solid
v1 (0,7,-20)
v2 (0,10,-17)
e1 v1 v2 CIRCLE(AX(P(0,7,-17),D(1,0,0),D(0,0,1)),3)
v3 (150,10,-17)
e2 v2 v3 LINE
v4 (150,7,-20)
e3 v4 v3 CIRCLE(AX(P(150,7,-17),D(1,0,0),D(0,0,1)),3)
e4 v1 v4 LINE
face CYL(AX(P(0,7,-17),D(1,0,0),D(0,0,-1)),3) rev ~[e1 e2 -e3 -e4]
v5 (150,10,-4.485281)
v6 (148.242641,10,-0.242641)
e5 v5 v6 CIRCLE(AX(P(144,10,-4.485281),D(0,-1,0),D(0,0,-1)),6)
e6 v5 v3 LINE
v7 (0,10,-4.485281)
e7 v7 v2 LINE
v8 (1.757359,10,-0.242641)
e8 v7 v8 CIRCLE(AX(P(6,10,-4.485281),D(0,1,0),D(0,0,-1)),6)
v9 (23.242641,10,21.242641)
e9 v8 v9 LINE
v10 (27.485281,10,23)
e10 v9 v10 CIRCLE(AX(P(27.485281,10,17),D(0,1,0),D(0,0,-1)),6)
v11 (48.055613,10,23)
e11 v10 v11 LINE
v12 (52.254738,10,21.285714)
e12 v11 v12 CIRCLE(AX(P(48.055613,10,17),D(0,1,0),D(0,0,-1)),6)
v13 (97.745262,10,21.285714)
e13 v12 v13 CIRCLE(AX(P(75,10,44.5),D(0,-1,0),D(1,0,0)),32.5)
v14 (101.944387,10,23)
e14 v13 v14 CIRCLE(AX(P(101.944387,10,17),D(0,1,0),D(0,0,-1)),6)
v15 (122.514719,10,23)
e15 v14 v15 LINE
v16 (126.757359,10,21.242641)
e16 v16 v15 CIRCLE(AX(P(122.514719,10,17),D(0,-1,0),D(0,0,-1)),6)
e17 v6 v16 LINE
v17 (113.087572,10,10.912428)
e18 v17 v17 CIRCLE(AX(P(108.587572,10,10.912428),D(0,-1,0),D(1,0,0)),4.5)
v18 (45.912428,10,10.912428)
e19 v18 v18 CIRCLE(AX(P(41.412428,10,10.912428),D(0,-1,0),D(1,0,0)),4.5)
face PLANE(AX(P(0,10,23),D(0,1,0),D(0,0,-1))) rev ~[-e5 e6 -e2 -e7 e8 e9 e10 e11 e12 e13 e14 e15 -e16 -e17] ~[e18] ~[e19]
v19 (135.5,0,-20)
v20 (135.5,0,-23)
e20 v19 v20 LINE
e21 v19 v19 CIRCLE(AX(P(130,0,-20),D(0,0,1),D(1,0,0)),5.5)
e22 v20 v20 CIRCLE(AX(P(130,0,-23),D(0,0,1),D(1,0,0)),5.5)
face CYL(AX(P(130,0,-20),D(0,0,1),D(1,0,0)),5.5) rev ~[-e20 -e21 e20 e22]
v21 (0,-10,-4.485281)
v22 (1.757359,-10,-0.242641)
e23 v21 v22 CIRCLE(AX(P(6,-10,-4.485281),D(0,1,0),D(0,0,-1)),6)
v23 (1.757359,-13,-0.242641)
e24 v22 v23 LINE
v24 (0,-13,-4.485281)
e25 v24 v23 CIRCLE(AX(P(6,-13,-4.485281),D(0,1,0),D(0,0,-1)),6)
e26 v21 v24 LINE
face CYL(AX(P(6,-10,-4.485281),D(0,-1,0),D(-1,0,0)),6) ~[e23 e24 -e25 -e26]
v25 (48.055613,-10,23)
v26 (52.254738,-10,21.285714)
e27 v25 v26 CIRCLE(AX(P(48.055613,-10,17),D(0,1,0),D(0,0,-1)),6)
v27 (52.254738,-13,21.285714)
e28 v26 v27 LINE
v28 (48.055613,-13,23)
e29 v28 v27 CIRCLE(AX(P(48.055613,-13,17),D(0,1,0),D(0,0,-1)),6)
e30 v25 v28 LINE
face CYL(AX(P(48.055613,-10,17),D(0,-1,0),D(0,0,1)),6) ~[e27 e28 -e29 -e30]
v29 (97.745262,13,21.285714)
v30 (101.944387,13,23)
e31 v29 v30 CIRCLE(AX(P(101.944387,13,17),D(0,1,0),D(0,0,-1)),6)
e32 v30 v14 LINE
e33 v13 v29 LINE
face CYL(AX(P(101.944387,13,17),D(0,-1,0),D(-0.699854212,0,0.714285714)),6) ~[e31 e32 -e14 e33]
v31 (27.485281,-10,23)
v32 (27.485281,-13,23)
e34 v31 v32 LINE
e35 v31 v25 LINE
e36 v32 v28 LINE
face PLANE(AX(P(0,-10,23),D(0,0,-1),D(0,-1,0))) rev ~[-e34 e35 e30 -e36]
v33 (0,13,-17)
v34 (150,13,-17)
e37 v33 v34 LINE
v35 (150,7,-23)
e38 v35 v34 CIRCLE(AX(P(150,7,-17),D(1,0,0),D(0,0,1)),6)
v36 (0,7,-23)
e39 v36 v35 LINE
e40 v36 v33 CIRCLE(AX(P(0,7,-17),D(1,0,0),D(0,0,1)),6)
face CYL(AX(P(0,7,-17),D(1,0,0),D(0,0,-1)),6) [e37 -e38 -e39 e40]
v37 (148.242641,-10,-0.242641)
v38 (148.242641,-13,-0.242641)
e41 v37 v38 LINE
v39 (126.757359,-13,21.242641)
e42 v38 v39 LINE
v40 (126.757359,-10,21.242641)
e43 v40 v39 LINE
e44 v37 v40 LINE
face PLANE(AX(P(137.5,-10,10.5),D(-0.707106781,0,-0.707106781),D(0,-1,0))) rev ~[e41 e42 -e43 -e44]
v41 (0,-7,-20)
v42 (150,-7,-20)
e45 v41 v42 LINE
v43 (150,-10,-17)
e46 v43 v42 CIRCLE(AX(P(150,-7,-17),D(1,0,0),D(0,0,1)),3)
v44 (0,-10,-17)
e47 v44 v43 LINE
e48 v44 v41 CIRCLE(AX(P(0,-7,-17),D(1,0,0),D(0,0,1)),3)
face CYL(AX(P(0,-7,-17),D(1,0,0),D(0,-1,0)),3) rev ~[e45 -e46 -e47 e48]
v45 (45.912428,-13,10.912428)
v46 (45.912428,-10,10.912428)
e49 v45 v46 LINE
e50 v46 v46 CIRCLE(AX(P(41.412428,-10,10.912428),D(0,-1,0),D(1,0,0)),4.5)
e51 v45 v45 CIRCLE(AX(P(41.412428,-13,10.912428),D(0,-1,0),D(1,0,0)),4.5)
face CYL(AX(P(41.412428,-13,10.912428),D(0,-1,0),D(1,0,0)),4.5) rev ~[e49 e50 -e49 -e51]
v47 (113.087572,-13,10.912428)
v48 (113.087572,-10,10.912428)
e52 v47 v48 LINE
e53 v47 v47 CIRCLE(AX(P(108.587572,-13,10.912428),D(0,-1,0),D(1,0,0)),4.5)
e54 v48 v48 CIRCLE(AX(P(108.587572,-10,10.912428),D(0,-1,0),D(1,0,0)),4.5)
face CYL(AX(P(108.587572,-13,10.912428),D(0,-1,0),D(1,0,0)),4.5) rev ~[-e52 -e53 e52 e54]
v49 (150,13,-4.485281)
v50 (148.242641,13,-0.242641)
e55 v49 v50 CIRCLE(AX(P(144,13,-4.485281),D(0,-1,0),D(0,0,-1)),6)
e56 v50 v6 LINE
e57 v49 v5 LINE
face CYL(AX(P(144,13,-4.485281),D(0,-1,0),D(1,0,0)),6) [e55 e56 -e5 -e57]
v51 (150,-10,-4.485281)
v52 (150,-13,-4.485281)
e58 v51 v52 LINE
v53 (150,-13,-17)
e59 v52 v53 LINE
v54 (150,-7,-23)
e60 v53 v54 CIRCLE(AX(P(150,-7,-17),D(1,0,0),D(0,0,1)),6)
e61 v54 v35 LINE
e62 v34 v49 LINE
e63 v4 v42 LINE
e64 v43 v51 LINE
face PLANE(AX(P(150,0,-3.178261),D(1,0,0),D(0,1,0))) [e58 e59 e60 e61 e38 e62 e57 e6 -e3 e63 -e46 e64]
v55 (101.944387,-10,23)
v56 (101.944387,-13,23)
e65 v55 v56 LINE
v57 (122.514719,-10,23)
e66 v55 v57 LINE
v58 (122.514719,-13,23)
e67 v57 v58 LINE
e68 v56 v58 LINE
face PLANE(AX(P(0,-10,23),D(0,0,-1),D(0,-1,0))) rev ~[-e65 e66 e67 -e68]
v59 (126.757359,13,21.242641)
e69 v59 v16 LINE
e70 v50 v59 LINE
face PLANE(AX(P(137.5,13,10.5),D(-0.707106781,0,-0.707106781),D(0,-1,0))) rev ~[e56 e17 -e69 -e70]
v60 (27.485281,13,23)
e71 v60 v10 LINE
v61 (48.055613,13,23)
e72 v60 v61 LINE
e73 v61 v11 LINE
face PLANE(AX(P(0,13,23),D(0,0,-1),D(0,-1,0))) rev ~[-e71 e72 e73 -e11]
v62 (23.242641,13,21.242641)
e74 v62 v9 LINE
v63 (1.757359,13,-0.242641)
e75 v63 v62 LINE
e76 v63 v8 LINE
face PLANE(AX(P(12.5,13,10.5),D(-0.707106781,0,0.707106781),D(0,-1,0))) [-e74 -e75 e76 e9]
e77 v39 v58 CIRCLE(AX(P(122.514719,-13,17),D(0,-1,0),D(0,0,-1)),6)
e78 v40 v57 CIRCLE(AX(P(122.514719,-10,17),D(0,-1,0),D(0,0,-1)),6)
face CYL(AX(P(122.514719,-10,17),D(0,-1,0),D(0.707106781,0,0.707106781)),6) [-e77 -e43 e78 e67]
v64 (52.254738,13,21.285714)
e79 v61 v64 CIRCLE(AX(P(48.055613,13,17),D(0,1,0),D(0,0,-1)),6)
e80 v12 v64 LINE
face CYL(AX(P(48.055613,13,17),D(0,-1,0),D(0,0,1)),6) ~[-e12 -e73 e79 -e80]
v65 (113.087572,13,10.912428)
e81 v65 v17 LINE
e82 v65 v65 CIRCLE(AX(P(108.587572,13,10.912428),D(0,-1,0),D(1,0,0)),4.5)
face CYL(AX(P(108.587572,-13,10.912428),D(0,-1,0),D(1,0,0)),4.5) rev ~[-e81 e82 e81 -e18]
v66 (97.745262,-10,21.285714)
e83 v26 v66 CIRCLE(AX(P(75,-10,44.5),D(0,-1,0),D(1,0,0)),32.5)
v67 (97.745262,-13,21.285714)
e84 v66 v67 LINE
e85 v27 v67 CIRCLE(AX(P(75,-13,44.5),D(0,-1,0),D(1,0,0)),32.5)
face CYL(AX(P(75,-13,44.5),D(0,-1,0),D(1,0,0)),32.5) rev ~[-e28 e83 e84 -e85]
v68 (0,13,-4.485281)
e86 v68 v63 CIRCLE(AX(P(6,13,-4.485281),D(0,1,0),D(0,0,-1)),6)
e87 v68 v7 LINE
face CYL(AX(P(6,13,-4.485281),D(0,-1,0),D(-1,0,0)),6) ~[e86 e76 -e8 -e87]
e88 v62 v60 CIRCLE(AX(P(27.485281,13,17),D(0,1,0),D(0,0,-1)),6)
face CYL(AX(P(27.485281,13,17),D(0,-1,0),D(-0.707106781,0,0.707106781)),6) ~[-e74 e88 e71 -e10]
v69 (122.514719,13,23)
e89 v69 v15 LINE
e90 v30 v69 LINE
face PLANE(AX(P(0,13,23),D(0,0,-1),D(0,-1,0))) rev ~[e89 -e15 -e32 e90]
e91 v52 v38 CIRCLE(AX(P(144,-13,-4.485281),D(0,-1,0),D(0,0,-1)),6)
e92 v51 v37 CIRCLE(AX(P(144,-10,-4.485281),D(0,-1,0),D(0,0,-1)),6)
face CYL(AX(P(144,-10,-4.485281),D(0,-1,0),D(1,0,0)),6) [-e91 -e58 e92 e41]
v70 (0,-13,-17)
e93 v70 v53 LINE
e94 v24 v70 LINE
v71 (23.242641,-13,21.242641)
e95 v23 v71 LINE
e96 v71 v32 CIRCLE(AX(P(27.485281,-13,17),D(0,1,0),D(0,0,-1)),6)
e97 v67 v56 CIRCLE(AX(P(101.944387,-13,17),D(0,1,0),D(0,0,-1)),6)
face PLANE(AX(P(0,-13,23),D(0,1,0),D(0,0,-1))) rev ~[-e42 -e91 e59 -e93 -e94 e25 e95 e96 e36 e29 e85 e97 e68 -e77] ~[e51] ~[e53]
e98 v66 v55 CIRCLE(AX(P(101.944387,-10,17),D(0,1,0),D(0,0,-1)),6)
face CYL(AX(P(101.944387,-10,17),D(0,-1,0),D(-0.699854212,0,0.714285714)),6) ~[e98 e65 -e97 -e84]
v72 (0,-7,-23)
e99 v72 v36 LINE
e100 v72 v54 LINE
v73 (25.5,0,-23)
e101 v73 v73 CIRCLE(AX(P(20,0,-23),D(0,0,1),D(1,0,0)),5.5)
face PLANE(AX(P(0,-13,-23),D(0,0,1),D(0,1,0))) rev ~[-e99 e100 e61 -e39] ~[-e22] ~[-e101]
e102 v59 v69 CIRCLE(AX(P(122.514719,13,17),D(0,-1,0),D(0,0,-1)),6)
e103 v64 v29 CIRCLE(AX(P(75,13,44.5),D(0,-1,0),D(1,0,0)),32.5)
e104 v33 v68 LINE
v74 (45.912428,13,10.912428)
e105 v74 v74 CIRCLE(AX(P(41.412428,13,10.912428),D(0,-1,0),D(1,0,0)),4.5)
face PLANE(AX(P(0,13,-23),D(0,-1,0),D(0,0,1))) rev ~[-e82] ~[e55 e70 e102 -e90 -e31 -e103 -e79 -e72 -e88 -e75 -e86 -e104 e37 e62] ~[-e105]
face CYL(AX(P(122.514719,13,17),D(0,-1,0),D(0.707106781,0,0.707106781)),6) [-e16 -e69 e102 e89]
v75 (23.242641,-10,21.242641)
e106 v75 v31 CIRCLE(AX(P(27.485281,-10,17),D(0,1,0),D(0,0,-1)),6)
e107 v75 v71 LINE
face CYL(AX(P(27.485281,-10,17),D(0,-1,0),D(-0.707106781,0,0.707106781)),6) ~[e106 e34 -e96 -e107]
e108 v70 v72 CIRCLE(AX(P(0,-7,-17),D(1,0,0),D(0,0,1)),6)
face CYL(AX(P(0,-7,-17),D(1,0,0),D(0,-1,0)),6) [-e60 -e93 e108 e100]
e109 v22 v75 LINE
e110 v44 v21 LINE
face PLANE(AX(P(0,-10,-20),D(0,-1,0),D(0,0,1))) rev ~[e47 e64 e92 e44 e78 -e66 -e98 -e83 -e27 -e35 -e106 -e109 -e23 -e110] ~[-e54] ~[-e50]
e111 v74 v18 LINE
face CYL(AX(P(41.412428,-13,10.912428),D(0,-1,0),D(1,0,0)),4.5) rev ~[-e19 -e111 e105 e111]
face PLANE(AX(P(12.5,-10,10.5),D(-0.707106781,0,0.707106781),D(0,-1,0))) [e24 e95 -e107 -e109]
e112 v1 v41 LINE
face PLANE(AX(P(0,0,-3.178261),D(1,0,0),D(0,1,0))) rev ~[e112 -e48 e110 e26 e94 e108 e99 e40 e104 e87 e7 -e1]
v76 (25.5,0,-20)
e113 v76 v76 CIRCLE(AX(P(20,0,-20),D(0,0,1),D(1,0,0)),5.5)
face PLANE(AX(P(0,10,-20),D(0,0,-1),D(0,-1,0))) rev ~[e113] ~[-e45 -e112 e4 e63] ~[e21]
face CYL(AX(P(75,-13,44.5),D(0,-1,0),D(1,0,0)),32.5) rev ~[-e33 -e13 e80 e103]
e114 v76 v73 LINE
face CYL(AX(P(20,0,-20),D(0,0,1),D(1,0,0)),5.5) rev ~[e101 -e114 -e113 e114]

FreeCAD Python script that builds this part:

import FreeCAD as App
import Part
import Sketcher
Q = App.Units.Quantity


def edges_at(feature, points):
    """Names of the edges that pass closest to the given points."""
    edges = feature.Shape.Edges
    near = lambda p: min(range(len(edges)), key=lambda i: edges[i].distToShape(Part.Vertex(*p))[0])
    return sorted({f"Edge{near(p) + 1}" for p in points})

doc = App.newDocument("Part")
params = doc.addObject("Spreadsheet::Sheet", "Params")
for row, (alias, value) in enumerate([
    ("sketch1_width", "26 mm"),
    ("sketch1_width2", "3 mm"),
    ("sketch1_height", "46 mm"),
    ("sketch1_height2", "43 mm"),
    ("pad1_length", "150 mm"),
    ("sketch2_diameter", "65 mm"),
    ("sketch2_diameter2", "9 mm"),
    ("pocket1_length", "50 mm"),
    ("sketch3_diameter", "11 mm"),
    ("pocket2_length", "25 mm"),
    ("chamfer_size", "25 mm"),
    ("fillet_radius", "6 mm"),
    ("sketch4_diameter", "65 mm"),
    ("sketch4_diameter2", "9 mm"),
    ("pocket3_length", "25 mm"),
    ("fillet2_radius", "3 mm"),
], start=1):
    params.set(f"A{row}", alias)
    params.set(f"B{row}", "=" + value)
    params.setAlias(f"B{row}", alias)

body = doc.addObject("PartDesign::Body", "Body")

# Sketch on YZ plane
sketch1 = body.newObject("Sketcher::SketchObject", "Sketch")
sketch1.AttachmentSupport = (doc.getObject("YZ_Plane"), [""])
sketch1.MapMode = "FlatFace"
sketch1.addGeometry([
    Part.LineSegment(App.Vector(-13, -23, 0), App.Vector(13, -23, 0)),  # 0
    Part.LineSegment(App.Vector(13, -23, 0), App.Vector(13, 23, 0)),  # 1
    Part.LineSegment(App.Vector(13, 23, 0), App.Vector(10, 23, 0)),  # 2
    Part.LineSegment(App.Vector(10, 23, 0), App.Vector(10, -20, 0)),  # 3
    Part.LineSegment(App.Vector(10, -20, 0), App.Vector(-10, -20, 0)),  # 4
    Part.LineSegment(App.Vector(-10, -20, 0), App.Vector(-10, 23, 0)),  # 5
    Part.LineSegment(App.Vector(-10, 23, 0), App.Vector(-13, 23, 0)),  # 6
    Part.LineSegment(App.Vector(-13, 23, 0), App.Vector(-13, -23, 0)),  # 7
], False)
sketch1.addConstraint([
    Sketcher.Constraint("Coincident", 0, 2, 1, 1),
    Sketcher.Constraint("Coincident", 1, 2, 2, 1),
    Sketcher.Constraint("Coincident", 2, 2, 3, 1),
    Sketcher.Constraint("Coincident", 3, 2, 4, 1),
    Sketcher.Constraint("Coincident", 4, 2, 5, 1),
    Sketcher.Constraint("Coincident", 5, 2, 6, 1),
    Sketcher.Constraint("Coincident", 6, 2, 7, 1),
    Sketcher.Constraint("Coincident", 7, 2, 0, 1),
    Sketcher.Constraint("Horizontal", 0),
    Sketcher.Constraint("Vertical", 1),
    Sketcher.Constraint("Horizontal", 2),
    Sketcher.Constraint("Vertical", 3),
    Sketcher.Constraint("Horizontal", 4),
    Sketcher.Constraint("Vertical", 5),
    Sketcher.Constraint("Horizontal", 6),
    Sketcher.Constraint("Vertical", 7),
    Sketcher.Constraint("Symmetric", 0, 2, 6, 2, -1, 1),
    Sketcher.Constraint("Symmetric", 2, 2, 5, 2, -2),
    Sketcher.Constraint("DistanceX", 0, 1, 0, 2, Q("26 mm")),
    Sketcher.Constraint("DistanceX", 2, 2, 2, 1, Q("3 mm")),
    Sketcher.Constraint("DistanceY", 1, 1, 1, 2, Q("46 mm")),
    Sketcher.Constraint("DistanceY", 3, 2, 3, 1, Q("43 mm")),
])
sketch1.setExpression("Constraints[18]", "Params.sketch1_width")
sketch1.setExpression("Constraints[19]", "Params.sketch1_width2")
sketch1.setExpression("Constraints[20]", "Params.sketch1_height")
sketch1.setExpression("Constraints[21]", "Params.sketch1_height2")
pad1 = body.newObject("PartDesign::Pad", "Pad")
pad1.Profile = sketch1
pad1.setExpression("Length", "Params.pad1_length")

# Sketch on XZ plane
sketch2 = body.newObject("Sketcher::SketchObject", "Sketch001")
sketch2.AttachmentSupport = (doc.getObject("XZ_Plane"), [""])
sketch2.MapMode = "FlatFace"
sketch2.AttachmentOffset = App.Placement(App.Vector(0, 0, 13), App.Rotation())
sketch2.addGeometry([
    Part.Circle(App.Vector(75, 44.5, 0), App.Vector(0, 0, 1), 32.5),
    Part.Circle(App.Vector(108.587572, 10.912428, 0), App.Vector(0, 0, 1), 4.5),
    Part.Circle(App.Vector(41.412428, 10.912428, 0), App.Vector(0, 0, 1), 4.5),
], False)
sketch2.addConstraint([
    Sketcher.Constraint("Equal", 1, 2),
    Sketcher.Constraint("Horizontal", 1, 3, 2, 3),
    Sketcher.Constraint("Diameter", 0, Q("65 mm")),
    Sketcher.Constraint("Diameter", 1, Q("9 mm")),
    Sketcher.Constraint("DistanceX", -1, 1, 0, 3, Q("75 mm")),
    Sketcher.Constraint("DistanceY", -1, 1, 0, 3, Q("44.5 mm")),
    Sketcher.Constraint("DistanceX", -1, 1, 1, 3, Q("108.587572 mm")),
    Sketcher.Constraint("DistanceY", -1, 1, 1, 3, Q("10.912428 mm")),
    Sketcher.Constraint("DistanceX", -1, 1, 2, 3, Q("41.412428 mm")),
])
sketch2.setExpression("Constraints[2]", "Params.sketch2_diameter")
sketch2.setExpression("Constraints[3]", "Params.sketch2_diameter2")
pocket1 = body.newObject("PartDesign::Pocket", "Pocket")
pocket1.Profile = sketch2
pocket1.setExpression("Length", "Params.pocket1_length")

# Sketch on XY plane
sketch3 = body.newObject("Sketcher::SketchObject", "Sketch002")
sketch3.AttachmentSupport = (doc.getObject("XY_Plane"), [""])
sketch3.MapMode = "FlatFace"
sketch3.AttachmentOffset = App.Placement(App.Vector(0, 0, -20), App.Rotation())
sketch3.addGeometry([
    Part.Circle(App.Vector(20, 0, 0), App.Vector(0, 0, 1), 5.5),
    Part.Circle(App.Vector(130, 0, 0), App.Vector(0, 0, 1), 5.5),
], False)
sketch3.addConstraint([
    Sketcher.Constraint("Equal", 0, 1),
    Sketcher.Constraint("PointOnObject", 0, 3, -1),
    Sketcher.Constraint("PointOnObject", 1, 3, -1),
    Sketcher.Constraint("Diameter", 0, Q("11 mm")),
    Sketcher.Constraint("DistanceX", -1, 1, 0, 3, Q("20 mm")),
    Sketcher.Constraint("DistanceX", -1, 1, 1, 3, Q("130 mm")),
])
sketch3.setExpression("Constraints[3]", "Params.sketch3_diameter")
pocket2 = body.newObject("PartDesign::Pocket", "Pocket001")
pocket2.Profile = sketch3
pocket2.setExpression("Length", "Params.pocket2_length")
doc.recompute()

chamfer = body.newObject("PartDesign::Chamfer", "Chamfer")
chamfer.Base = (pocket2, edges_at(pocket2, [
    (0, 11.5, 23),
    (0, -11.5, 23),
    (150, -11.5, 23),
    (150, 11.5, 23),
]))
chamfer.setExpression("Size", "Params.chamfer_size")
doc.recompute()

fillet = body.newObject("PartDesign::Fillet", "Fillet")
fillet.Base = (chamfer, edges_at(chamfer, [
    (0, -11.5, -2),
    (0, 11.5, -2),
    (25, 11.5, 23),
    (25, -11.5, 23),
    (99.372, -11.5, 23),
    (50.628, -11.5, 23),
    (50.628, 11.5, 23),
    (99.372, 11.5, 23),
    (125, -11.5, 23),
    (125, 11.5, 23),
    (150, 11.5, -2),
    (150, -11.5, -2),
    (75, -13, -23),
    (75, 13, -23),
]))
fillet.setExpression("Radius", "Params.fillet_radius")

# Sketch on XZ plane
sketch4 = body.newObject("Sketcher::SketchObject", "Sketch003")
sketch4.AttachmentSupport = (doc.getObject("XZ_Plane"), [""])
sketch4.MapMode = "FlatFace"
sketch4.AttachmentOffset = App.Placement(App.Vector(0, 0, 13), App.Rotation())
sketch4.addGeometry([
    Part.Circle(App.Vector(75, 44.5, 0), App.Vector(0, 0, 1), 32.5),
    Part.Circle(App.Vector(108.587572, 10.912428, 0), App.Vector(0, 0, 1), 4.5),
    Part.Circle(App.Vector(41.412428, 10.912428, 0), App.Vector(0, 0, 1), 4.5),
], False)
sketch4.addConstraint([
    Sketcher.Constraint("Equal", 1, 2),
    Sketcher.Constraint("Horizontal", 1, 3, 2, 3),
    Sketcher.Constraint("Diameter", 0, Q("65 mm")),
    Sketcher.Constraint("Diameter", 1, Q("9 mm")),
    Sketcher.Constraint("DistanceX", -1, 1, 0, 3, Q("75 mm")),
    Sketcher.Constraint("DistanceY", -1, 1, 0, 3, Q("44.5 mm")),
    Sketcher.Constraint("DistanceX", -1, 1, 1, 3, Q("108.587572 mm")),
    Sketcher.Constraint("DistanceY", -1, 1, 1, 3, Q("10.912428 mm")),
    Sketcher.Constraint("DistanceX", -1, 1, 2, 3, Q("41.412428 mm")),
])
sketch4.setExpression("Constraints[2]", "Params.sketch4_diameter")
sketch4.setExpression("Constraints[3]", "Params.sketch4_diameter2")
pocket3 = body.newObject("PartDesign::Pocket", "Pocket002")
pocket3.Profile = sketch4
pocket3.setExpression("Length", "Params.pocket3_length")
doc.recompute()

fillet2 = body.newObject("PartDesign::Fillet", "Fillet001")
fillet2.Base = (pocket3, edges_at(pocket3, [(75, 10, -20), (75, -10, -20)]))
fillet2.setExpression("Radius", "Params.fillet2_radius")

doc.recompute()
